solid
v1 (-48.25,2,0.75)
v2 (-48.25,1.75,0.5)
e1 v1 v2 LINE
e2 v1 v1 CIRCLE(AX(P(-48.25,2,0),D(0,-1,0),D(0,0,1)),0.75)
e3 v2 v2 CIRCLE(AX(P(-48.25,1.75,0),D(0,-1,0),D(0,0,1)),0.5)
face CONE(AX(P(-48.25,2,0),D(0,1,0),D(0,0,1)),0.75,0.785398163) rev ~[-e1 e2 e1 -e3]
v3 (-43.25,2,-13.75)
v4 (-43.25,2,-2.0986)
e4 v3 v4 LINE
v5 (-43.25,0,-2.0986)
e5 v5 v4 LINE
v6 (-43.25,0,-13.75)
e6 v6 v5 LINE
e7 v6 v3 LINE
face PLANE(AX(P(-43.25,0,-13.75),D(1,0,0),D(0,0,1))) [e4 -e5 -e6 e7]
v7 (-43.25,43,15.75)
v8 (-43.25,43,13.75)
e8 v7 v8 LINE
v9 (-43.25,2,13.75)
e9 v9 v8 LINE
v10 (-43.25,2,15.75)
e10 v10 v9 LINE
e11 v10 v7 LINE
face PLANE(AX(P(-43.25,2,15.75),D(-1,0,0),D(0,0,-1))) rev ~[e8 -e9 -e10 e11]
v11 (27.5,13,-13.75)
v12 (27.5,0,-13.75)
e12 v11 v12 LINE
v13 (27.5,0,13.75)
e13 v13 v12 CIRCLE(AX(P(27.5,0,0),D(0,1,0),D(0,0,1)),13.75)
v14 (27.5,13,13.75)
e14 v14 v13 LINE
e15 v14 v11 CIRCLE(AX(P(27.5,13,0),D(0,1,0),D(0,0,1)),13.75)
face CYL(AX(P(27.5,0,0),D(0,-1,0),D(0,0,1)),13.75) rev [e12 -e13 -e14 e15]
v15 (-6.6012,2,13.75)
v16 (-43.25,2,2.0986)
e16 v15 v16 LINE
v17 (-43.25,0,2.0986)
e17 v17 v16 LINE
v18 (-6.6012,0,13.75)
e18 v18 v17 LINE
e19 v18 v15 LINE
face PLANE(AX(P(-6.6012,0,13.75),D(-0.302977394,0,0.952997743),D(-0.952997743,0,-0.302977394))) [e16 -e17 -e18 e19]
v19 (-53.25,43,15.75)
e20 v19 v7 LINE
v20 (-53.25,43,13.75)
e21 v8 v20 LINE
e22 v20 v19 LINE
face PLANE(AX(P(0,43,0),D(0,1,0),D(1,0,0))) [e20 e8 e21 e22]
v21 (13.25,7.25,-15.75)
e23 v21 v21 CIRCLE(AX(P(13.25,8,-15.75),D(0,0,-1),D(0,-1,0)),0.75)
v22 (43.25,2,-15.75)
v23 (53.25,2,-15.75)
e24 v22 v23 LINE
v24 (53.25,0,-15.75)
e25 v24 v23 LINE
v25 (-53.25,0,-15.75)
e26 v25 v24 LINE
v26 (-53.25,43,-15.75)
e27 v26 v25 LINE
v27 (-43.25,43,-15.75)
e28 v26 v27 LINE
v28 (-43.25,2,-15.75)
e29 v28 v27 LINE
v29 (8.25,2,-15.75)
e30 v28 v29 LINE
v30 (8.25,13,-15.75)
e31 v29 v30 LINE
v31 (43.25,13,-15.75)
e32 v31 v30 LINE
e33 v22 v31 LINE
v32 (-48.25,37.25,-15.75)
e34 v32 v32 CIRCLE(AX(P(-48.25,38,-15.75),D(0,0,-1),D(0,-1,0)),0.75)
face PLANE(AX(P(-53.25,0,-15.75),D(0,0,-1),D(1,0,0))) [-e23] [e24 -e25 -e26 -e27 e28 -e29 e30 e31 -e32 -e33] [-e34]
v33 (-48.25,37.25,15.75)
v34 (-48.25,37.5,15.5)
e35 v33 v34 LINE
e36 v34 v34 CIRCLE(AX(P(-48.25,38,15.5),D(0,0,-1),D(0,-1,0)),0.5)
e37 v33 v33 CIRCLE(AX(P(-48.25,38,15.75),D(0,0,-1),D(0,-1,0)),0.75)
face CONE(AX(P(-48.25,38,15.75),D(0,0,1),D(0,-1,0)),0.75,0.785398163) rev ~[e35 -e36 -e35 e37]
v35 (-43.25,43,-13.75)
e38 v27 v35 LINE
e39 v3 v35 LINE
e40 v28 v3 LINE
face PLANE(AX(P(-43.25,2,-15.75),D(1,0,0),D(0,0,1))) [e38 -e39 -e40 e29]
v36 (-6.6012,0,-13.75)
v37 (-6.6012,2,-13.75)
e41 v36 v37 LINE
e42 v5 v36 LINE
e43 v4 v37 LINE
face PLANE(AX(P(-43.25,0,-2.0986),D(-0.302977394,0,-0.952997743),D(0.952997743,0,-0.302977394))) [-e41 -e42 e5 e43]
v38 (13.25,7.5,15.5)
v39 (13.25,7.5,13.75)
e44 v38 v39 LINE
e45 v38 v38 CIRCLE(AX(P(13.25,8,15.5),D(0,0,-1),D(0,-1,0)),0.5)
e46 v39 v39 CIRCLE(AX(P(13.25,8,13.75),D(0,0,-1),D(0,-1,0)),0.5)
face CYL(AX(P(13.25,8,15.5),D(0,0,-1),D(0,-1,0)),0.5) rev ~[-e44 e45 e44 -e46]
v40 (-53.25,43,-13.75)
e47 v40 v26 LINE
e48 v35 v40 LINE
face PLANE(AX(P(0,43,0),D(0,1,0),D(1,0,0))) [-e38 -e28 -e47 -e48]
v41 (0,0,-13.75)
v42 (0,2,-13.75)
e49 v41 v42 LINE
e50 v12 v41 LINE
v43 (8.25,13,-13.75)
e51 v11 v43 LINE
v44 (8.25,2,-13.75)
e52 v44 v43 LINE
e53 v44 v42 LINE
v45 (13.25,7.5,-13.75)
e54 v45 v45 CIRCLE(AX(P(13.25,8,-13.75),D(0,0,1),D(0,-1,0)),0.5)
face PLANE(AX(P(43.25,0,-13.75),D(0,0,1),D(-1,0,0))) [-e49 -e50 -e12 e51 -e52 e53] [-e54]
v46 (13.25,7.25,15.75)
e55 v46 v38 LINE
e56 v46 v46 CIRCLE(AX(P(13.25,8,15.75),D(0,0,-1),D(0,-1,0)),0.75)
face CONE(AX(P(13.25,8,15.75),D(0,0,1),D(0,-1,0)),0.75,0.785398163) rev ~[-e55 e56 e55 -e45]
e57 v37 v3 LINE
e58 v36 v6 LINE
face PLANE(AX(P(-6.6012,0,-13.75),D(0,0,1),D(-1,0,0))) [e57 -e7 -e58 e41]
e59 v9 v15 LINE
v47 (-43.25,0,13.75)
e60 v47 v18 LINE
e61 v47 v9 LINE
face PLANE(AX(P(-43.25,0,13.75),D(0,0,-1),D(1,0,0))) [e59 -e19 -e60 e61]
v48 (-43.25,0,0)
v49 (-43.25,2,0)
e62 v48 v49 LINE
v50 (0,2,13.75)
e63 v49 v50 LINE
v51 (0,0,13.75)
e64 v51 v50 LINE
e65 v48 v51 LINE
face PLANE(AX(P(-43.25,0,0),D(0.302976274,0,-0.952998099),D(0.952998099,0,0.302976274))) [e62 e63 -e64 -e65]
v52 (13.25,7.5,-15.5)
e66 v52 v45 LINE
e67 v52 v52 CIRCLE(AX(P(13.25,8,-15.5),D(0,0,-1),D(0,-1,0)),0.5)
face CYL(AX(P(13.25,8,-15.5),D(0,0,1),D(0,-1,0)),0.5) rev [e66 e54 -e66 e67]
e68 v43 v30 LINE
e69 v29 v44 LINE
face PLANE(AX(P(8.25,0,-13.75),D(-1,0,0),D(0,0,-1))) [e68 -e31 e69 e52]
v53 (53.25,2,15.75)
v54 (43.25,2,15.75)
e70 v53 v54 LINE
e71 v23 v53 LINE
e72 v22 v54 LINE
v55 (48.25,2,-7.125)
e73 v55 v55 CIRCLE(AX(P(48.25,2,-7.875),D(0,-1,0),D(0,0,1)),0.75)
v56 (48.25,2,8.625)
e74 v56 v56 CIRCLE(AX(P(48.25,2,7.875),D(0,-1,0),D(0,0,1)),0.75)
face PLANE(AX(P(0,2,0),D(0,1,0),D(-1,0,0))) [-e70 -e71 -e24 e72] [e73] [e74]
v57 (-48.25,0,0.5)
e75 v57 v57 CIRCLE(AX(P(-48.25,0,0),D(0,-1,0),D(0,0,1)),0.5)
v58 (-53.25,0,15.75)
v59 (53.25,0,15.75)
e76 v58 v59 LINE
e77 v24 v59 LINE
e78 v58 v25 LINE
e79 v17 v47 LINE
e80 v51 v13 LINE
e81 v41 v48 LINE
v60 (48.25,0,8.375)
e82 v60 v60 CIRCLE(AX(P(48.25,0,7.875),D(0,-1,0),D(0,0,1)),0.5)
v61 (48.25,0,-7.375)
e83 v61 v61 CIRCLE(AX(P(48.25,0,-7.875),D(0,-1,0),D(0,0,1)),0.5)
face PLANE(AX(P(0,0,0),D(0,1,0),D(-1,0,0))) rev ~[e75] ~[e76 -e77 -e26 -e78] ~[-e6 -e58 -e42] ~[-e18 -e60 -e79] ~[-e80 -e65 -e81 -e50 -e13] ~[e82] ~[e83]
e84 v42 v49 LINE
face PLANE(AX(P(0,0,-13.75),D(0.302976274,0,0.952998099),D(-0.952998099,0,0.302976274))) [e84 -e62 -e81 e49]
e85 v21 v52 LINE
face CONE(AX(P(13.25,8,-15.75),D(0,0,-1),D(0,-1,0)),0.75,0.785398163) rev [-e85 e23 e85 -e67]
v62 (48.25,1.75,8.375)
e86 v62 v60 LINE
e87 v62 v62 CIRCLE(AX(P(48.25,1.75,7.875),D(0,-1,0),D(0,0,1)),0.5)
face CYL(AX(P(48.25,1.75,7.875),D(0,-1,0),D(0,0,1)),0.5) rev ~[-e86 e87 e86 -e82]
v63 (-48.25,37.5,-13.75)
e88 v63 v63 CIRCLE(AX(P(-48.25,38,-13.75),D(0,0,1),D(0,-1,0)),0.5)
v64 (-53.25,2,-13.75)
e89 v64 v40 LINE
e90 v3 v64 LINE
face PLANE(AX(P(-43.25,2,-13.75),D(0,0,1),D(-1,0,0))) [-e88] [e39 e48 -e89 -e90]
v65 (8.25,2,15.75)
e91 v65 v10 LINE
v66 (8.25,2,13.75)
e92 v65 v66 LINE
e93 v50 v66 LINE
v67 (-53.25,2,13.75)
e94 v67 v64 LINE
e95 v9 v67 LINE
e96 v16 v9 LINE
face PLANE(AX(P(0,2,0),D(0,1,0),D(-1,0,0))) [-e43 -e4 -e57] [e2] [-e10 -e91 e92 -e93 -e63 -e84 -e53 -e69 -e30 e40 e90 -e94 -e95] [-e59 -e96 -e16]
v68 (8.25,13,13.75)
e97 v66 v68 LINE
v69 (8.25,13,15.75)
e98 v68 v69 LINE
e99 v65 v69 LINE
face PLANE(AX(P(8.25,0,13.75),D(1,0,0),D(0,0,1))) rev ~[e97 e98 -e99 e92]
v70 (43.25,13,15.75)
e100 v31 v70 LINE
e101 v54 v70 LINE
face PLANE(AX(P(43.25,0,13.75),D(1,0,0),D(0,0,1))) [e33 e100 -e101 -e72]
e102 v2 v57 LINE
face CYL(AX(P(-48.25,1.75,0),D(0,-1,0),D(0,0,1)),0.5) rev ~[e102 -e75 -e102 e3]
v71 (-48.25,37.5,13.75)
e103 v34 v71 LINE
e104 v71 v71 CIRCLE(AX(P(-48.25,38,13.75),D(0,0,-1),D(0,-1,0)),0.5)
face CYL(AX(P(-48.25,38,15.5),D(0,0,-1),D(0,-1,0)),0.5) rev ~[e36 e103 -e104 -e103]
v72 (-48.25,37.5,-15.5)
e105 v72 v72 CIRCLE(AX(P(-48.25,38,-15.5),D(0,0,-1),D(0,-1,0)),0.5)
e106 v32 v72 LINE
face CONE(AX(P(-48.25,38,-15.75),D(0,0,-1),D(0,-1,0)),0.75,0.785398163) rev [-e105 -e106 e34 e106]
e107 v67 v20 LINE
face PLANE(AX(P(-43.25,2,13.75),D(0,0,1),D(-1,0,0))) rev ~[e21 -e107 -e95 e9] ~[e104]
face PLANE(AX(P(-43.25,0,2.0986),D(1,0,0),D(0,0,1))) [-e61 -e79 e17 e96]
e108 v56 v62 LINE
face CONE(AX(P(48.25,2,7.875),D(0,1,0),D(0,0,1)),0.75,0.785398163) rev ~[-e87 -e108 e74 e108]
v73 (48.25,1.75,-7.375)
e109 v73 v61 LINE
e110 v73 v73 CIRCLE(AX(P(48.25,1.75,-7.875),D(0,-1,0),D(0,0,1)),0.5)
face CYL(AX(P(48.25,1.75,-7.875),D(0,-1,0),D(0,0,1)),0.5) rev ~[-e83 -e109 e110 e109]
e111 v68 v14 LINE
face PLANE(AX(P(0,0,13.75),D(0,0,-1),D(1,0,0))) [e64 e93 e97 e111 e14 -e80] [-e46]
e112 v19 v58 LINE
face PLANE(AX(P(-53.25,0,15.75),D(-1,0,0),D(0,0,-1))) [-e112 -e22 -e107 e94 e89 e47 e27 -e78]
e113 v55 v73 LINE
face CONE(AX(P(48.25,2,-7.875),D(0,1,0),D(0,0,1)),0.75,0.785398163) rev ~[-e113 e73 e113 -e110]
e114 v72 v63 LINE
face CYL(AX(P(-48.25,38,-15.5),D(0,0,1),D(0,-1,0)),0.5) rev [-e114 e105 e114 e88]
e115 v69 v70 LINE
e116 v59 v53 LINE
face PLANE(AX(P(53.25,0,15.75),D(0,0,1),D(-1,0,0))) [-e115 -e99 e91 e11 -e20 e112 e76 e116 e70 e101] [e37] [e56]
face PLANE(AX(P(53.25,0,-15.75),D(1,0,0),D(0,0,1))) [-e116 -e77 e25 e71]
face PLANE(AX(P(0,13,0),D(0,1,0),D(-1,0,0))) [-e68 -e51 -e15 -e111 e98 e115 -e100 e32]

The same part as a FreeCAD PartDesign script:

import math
import FreeCAD as App
import Part
import Sketcher
from FreeCAD import Vector
Q = App.Units.Quantity

doc = App.newDocument("Part")
body = doc.addObject("PartDesign::Body", "Body")

sketch1 = body.newObject("Sketcher::SketchObject", "Sketch")
sketch1.AttachmentSupport = (doc.getObject("XZ_Plane"), [""])
sketch1.MapMode = "FlatFace"
sketch1.addGeometry([
    Part.LineSegment(Vector(-53, 16, 0), Vector(53, 16, 0)),
    Part.LineSegment(Vector(53, 16, 0), Vector(53, -16, 0)),
    Part.LineSegment(Vector(53, -16, 0), Vector(-53, -16, 0)),
    Part.LineSegment(Vector(-53, -16, 0), Vector(-53, 16, 0)),
    Part.LineSegment(Vector(-43, -2, 0), Vector(-43, -14, 0)),
    Part.LineSegment(Vector(-43, -14, 0), Vector(-7, -14, 0)),
    Part.LineSegment(Vector(-7, -14, 0), Vector(-43, -2, 0)),
    Part.LineSegment(Vector(0, -14, 0), Vector(43, -14, 0)),
    Part.LineSegment(Vector(43, -14, 0), Vector(43, 14, 0)),
    Part.LineSegment(Vector(43, 14, 0), Vector(0, 14, 0)),
    Part.LineSegment(Vector(0, 14, 0), Vector(-43, 0, 0)),
    Part.LineSegment(Vector(-43, 0, 0), Vector(0, -14, 0)),
    Part.LineSegment(Vector(-7, 14, 0), Vector(-43, 14, 0)),
    Part.LineSegment(Vector(-43, 14, 0), Vector(-43, 2, 0)),
    Part.LineSegment(Vector(-43, 2, 0), Vector(-7, 14, 0)),
], False)
sketch1.addConstraint([
    Sketcher.Constraint("Coincident", 0, 2, 1, 1),
    Sketcher.Constraint("Coincident", 1, 2, 2, 1),
    Sketcher.Constraint("Coincident", 2, 2, 3, 1),
    Sketcher.Constraint("Coincident", 3, 2, 0, 1),
    Sketcher.Constraint("Coincident", 4, 2, 5, 1),
    Sketcher.Constraint("Coincident", 5, 2, 6, 1),
    Sketcher.Constraint("Coincident", 6, 2, 4, 1),
    Sketcher.Constraint("Coincident", 7, 2, 8, 1),
    Sketcher.Constraint("Coincident", 8, 2, 9, 1),
    Sketcher.Constraint("Coincident", 9, 2, 10, 1),
    Sketcher.Constraint("Coincident", 10, 2, 11, 1),
    Sketcher.Constraint("Coincident", 11, 2, 7, 1),
    Sketcher.Constraint("Coincident", 12, 2, 13, 1),
    Sketcher.Constraint("Coincident", 13, 2, 14, 1),
    Sketcher.Constraint("Coincident", 14, 2, 12, 1),
    Sketcher.Constraint("Horizontal", 0),
    Sketcher.Constraint("Vertical", 1),
    Sketcher.Constraint("Horizontal", 2),
    Sketcher.Constraint("Vertical", 3),
    Sketcher.Constraint("Vertical", 4),
    Sketcher.Constraint("Horizontal", 5),
    Sketcher.Constraint("Horizontal", 7),
    Sketcher.Constraint("Vertical", 8),
    Sketcher.Constraint("Horizontal", 9),
    Sketcher.Constraint("Horizontal", 12),
    Sketcher.Constraint("Vertical", 13),
    Sketcher.Constraint("Symmetric", 0, 2, 2, 2, -1, 1),
    Sketcher.Constraint("Symmetric", 4, 2, 8, 2, -1, 1),
    Sketcher.Constraint("Symmetric", 9, 2, 11, 2, -1, 1),
    Sketcher.Constraint("Symmetric", 7, 2, 12, 2, -1, 1),
    Sketcher.Constraint("PointOnObject", 9, 2, -2),
    Sketcher.Constraint("PointOnObject", 10, 2, -1),
    Sketcher.Constraint("Parallel", 6, 11),
    Sketcher.Constraint("Parallel", 10, 14),
    Sketcher.Constraint("Vertical", 6, 2, 10, 2),
    Sketcher.Constraint("Vertical", 5, 2, 14, 2),
    Sketcher.Constraint("DistanceX", 0, 1, 0, 2, Q("106.5 mm")),
    Sketcher.Constraint("DistanceY", 8, 1, 8, 2, Q("27.5 mm")),
    Sketcher.Constraint("DistanceX", 2, 2, 4, 2, Q("10 mm")),
    Sketcher.Constraint("DistanceY", 2, 2, 4, 2, Q("2 mm")),
    Sketcher.Constraint("DistanceX", 5, 1, 5, 2, Q("36.6488 mm")),
])
pad1 = body.newObject("PartDesign::Pad", "Pad")
pad1.Profile = sketch1
pad1.Length = 2
pad1.Reversed = True

sketch2 = body.newObject("Sketcher::SketchObject", "Sketch001")
sketch2.AttachmentSupport = (doc.getObject("XZ_Plane"), [""])
sketch2.MapMode = "FlatFace"
sketch2.addGeometry([
    Part.LineSegment(Vector(43.2, 15.8, 0), Vector(43.2, -15.8, 0)),
    Part.LineSegment(Vector(43.2, -15.8, 0), Vector(8.2, -15.8, 0)),
    Part.LineSegment(Vector(8.2, -15.8, 0), Vector(8.2, -13.8, 0)),
    Part.LineSegment(Vector(8.2, -13.8, 0), Vector(27.5, -13.8, 0)),
    Part.ArcOfCircle(Part.Circle(Vector(27.5, 0, 0), Vector(0, 0, 1), 13.8), math.radians(-90), math.radians(90)),
    Part.LineSegment(Vector(27.5, 13.8, 0), Vector(8.2, 13.8, 0)),
    Part.LineSegment(Vector(8.2, 13.8, 0), Vector(8.2, 15.8, 0)),
    Part.LineSegment(Vector(8.2, 15.8, 0), Vector(43.2, 15.8, 0)),
], False)
sketch2.addConstraint([
    Sketcher.Constraint("Coincident", 0, 2, 1, 1),
    Sketcher.Constraint("Coincident", 1, 2, 2, 1),
    Sketcher.Constraint("Coincident", 2, 2, 3, 1),
    Sketcher.Constraint("Tangent", 3, 2, 4, 1),
    Sketcher.Constraint("Tangent", 4, 2, 5, 1),
    Sketcher.Constraint("Coincident", 5, 2, 6, 1),
    Sketcher.Constraint("Coincident", 6, 2, 7, 1),
    Sketcher.Constraint("Coincident", 7, 2, 0, 1),
    Sketcher.Constraint("Vertical", 0),
    Sketcher.Constraint("Horizontal", 1),
    Sketcher.Constraint("Vertical", 2),
    Sketcher.Constraint("Horizontal", 3),
    Sketcher.Constraint("Horizontal", 5),
    Sketcher.Constraint("Vertical", 6),
    Sketcher.Constraint("Horizontal", 7),
    Sketcher.Constraint("Symmetric", 2, 2, 5, 2, -1),
    Sketcher.Constraint("Equal", 2, 6),
    Sketcher.Constraint("DistanceY", 2, 1, 2, 2, Q("2 mm")),
    Sketcher.Constraint("DistanceX", 1, 2, 1, 1, Q("35 mm")),
    Sketcher.Constraint("Radius", 4, Q("13.75 mm")),
    Sketcher.Constraint("DistanceX", 3, 1, 3, 2, Q("19.25 mm")),
    Sketcher.Constraint("DistanceX", -1, 1, 4, 3, Q("27.5 mm")),
])
pad2 = body.newObject("PartDesign::Pad", "Pad001")
pad2.Profile = sketch2
pad2.Length = 13
pad2.Reversed = True

sketch3 = body.newObject("Sketcher::SketchObject", "Sketch002")
sketch3.AttachmentSupport = (doc.getObject("XZ_Plane"), [""])
sketch3.MapMode = "FlatFace"
sketch3.AttachmentOffset = App.Placement(Vector(0, 0, -2), App.Rotation())
sketch3.addGeometry([
    Part.LineSegment(Vector(-53.2, -13.8, 0), Vector(-43.2, -13.8, 0)),
    Part.LineSegment(Vector(-43.2, -13.8, 0), Vector(-43.2, -15.8, 0)),
    Part.LineSegment(Vector(-43.2, -15.8, 0), Vector(-53.2, -15.8, 0)),
    Part.LineSegment(Vector(-53.2, -15.8, 0), Vector(-53.2, -13.8, 0)),
    Part.LineSegment(Vector(-53.2, 13.8, 0), Vector(-53.2, 15.8, 0)),
    Part.LineSegment(Vector(-53.2, 15.8, 0), Vector(-43.2, 15.8, 0)),
    Part.LineSegment(Vector(-43.2, 15.8, 0), Vector(-43.2, 13.8, 0)),
    Part.LineSegment(Vector(-43.2, 13.8, 0), Vector(-53.2, 13.8, 0)),
], False)
sketch3.addConstraint([
    Sketcher.Constraint("Coincident", 0, 2, 1, 1),
    Sketcher.Constraint("Coincident", 1, 2, 2, 1),
    Sketcher.Constraint("Coincident", 2, 2, 3, 1),
    Sketcher.Constraint("Coincident", 3, 2, 0, 1),
    Sketcher.Constraint("Coincident", 4, 2, 5, 1),
    Sketcher.Constraint("Coincident", 5, 2, 6, 1),
    Sketcher.Constraint("Coincident", 6, 2, 7, 1),
    Sketcher.Constraint("Coincident", 7, 2, 4, 1),
    Sketcher.Constraint("Horizontal", 0),
    Sketcher.Constraint("Vertical", 1),
    Sketcher.Constraint("Horizontal", 2),
    Sketcher.Constraint("Vertical", 3),
    Sketcher.Constraint("Vertical", 4),
    Sketcher.Constraint("Horizontal", 5),
    Sketcher.Constraint("Vertical", 6),
    Sketcher.Constraint("Horizontal", 7),
    Sketcher.Constraint("Symmetric", 2, 2, 4, 2, -1),
    Sketcher.Constraint("Symmetric", 0, 2, 6, 2, -1),
    Sketcher.Constraint("DistanceX", 0, 1, 0, 2, Q("10 mm")),
    Sketcher.Constraint("DistanceY", 1, 2, 1, 1, Q("2 mm")),
    Sketcher.Constraint("DistanceY", 3, 2, 4, 2, Q("29.5 mm")),
    Sketcher.Constraint("DistanceX", 0, 2, -1, 1, Q("43.25 mm")),
])
pad3 = body.newObject("PartDesign::Pad", "Pad002")
pad3.Profile = sketch3
pad3.Length = 41
pad3.Reversed = True

sketch4 = body.newObject("Sketcher::SketchObject", "Sketch003")
sketch4.AttachmentSupport = (doc.getObject("XY_Plane"), [""])
sketch4.MapMode = "FlatFace"
sketch4.AttachmentOffset = App.Placement(Vector(0, 0, 15.75), App.Rotation())
sketch4.addGeometry([
    Part.Circle(Vector(-48.2, 38, 0), Vector(0, 0, 1), 0.5),
    Part.Circle(Vector(13.2, 8, 0), Vector(0, 0, 1), 0.5),
], False)
sketch4.addConstraint([
    Sketcher.Constraint("Equal", 0, 1),
    Sketcher.Constraint("Diameter", 0, Q("1 mm")),
    Sketcher.Constraint("DistanceY", -1, 1, 0, 3, Q("38 mm")),
    Sketcher.Constraint("DistanceY", -1, 1, 1, 3, Q("8 mm")),
    Sketcher.Constraint("DistanceX", 0, 3, 1, 3, Q("61.5 mm")),
    Sketcher.Constraint("DistanceX", 0, 3, -1, 1, Q("48.25 mm")),
])
doc.recompute()
hole = body.newObject("PartDesign::Hole", "Hole")
hole.Profile = sketch4
hole.ThreadType = "None"
hole.Diameter = 1
hole.DepthType = "Dimension"
hole.Depth = 15.75
hole.DrillPoint = "Flat"
hole.HoleCutType = "Countersink"
hole.HoleCutDiameter = 1.5
hole.HoleCutCountersinkAngle = 90
doc.recompute()

mirrored = body.newObject("PartDesign::Mirrored", "Mirrored")
mirrored.Originals = [hole]
mirrored.MirrorPlane = (doc.getObject("XY_Plane"), [""])
body.Tip = mirrored

sketch5 = body.newObject("Sketcher::SketchObject", "Sketch004")
sketch5.AttachmentSupport = (doc.getObject("XZ_Plane"), [""])
sketch5.MapMode = "FlatFace"
sketch5.AttachmentOffset = App.Placement(Vector(0, 0, -2), App.Rotation())
sketch5.addGeometry([
    Part.Circle(Vector(-48.2, 0, 0), Vector(0, 0, 1), 0.5),
    Part.Circle(Vector(48.2, 7.9, 0), Vector(0, 0, 1), 0.5),
    Part.Circle(Vector(48.2, -7.9, 0), Vector(0, 0, 1), 0.5),
], False)
sketch5.addConstraint([
    Sketcher.Constraint("Equal", 0, 1),
    Sketcher.Constraint("Equal", 1, 2),
    Sketcher.Constraint("Symmetric", 1, 3, 2, 3, -1),
    Sketcher.Constraint("PointOnObject", 0, 3, -1),
    Sketcher.Constraint("Diameter", 0, Q("1 mm")),
    Sketcher.Constraint("DistanceX", 0, 3, 1, 3, Q("96.5 mm")),
    Sketcher.Constraint("DistanceX", 0, 3, -1, 1, Q("48.25 mm")),
    Sketcher.Constraint("DistanceY", 2, 3, 1, 3, Q("15.75 mm")),
])
doc.recompute()
hole2 = body.newObject("PartDesign::Hole", "Hole001")
hole2.Profile = sketch5
hole2.ThreadType = "None"
hole2.Diameter = 1
hole2.DepthType = "ThroughAll"
hole2.HoleCutType = "Countersink"
hole2.HoleCutDiameter = 1.5
hole2.HoleCutCountersinkAngle = 90
hole2.Reversed = True

doc.recompute()
